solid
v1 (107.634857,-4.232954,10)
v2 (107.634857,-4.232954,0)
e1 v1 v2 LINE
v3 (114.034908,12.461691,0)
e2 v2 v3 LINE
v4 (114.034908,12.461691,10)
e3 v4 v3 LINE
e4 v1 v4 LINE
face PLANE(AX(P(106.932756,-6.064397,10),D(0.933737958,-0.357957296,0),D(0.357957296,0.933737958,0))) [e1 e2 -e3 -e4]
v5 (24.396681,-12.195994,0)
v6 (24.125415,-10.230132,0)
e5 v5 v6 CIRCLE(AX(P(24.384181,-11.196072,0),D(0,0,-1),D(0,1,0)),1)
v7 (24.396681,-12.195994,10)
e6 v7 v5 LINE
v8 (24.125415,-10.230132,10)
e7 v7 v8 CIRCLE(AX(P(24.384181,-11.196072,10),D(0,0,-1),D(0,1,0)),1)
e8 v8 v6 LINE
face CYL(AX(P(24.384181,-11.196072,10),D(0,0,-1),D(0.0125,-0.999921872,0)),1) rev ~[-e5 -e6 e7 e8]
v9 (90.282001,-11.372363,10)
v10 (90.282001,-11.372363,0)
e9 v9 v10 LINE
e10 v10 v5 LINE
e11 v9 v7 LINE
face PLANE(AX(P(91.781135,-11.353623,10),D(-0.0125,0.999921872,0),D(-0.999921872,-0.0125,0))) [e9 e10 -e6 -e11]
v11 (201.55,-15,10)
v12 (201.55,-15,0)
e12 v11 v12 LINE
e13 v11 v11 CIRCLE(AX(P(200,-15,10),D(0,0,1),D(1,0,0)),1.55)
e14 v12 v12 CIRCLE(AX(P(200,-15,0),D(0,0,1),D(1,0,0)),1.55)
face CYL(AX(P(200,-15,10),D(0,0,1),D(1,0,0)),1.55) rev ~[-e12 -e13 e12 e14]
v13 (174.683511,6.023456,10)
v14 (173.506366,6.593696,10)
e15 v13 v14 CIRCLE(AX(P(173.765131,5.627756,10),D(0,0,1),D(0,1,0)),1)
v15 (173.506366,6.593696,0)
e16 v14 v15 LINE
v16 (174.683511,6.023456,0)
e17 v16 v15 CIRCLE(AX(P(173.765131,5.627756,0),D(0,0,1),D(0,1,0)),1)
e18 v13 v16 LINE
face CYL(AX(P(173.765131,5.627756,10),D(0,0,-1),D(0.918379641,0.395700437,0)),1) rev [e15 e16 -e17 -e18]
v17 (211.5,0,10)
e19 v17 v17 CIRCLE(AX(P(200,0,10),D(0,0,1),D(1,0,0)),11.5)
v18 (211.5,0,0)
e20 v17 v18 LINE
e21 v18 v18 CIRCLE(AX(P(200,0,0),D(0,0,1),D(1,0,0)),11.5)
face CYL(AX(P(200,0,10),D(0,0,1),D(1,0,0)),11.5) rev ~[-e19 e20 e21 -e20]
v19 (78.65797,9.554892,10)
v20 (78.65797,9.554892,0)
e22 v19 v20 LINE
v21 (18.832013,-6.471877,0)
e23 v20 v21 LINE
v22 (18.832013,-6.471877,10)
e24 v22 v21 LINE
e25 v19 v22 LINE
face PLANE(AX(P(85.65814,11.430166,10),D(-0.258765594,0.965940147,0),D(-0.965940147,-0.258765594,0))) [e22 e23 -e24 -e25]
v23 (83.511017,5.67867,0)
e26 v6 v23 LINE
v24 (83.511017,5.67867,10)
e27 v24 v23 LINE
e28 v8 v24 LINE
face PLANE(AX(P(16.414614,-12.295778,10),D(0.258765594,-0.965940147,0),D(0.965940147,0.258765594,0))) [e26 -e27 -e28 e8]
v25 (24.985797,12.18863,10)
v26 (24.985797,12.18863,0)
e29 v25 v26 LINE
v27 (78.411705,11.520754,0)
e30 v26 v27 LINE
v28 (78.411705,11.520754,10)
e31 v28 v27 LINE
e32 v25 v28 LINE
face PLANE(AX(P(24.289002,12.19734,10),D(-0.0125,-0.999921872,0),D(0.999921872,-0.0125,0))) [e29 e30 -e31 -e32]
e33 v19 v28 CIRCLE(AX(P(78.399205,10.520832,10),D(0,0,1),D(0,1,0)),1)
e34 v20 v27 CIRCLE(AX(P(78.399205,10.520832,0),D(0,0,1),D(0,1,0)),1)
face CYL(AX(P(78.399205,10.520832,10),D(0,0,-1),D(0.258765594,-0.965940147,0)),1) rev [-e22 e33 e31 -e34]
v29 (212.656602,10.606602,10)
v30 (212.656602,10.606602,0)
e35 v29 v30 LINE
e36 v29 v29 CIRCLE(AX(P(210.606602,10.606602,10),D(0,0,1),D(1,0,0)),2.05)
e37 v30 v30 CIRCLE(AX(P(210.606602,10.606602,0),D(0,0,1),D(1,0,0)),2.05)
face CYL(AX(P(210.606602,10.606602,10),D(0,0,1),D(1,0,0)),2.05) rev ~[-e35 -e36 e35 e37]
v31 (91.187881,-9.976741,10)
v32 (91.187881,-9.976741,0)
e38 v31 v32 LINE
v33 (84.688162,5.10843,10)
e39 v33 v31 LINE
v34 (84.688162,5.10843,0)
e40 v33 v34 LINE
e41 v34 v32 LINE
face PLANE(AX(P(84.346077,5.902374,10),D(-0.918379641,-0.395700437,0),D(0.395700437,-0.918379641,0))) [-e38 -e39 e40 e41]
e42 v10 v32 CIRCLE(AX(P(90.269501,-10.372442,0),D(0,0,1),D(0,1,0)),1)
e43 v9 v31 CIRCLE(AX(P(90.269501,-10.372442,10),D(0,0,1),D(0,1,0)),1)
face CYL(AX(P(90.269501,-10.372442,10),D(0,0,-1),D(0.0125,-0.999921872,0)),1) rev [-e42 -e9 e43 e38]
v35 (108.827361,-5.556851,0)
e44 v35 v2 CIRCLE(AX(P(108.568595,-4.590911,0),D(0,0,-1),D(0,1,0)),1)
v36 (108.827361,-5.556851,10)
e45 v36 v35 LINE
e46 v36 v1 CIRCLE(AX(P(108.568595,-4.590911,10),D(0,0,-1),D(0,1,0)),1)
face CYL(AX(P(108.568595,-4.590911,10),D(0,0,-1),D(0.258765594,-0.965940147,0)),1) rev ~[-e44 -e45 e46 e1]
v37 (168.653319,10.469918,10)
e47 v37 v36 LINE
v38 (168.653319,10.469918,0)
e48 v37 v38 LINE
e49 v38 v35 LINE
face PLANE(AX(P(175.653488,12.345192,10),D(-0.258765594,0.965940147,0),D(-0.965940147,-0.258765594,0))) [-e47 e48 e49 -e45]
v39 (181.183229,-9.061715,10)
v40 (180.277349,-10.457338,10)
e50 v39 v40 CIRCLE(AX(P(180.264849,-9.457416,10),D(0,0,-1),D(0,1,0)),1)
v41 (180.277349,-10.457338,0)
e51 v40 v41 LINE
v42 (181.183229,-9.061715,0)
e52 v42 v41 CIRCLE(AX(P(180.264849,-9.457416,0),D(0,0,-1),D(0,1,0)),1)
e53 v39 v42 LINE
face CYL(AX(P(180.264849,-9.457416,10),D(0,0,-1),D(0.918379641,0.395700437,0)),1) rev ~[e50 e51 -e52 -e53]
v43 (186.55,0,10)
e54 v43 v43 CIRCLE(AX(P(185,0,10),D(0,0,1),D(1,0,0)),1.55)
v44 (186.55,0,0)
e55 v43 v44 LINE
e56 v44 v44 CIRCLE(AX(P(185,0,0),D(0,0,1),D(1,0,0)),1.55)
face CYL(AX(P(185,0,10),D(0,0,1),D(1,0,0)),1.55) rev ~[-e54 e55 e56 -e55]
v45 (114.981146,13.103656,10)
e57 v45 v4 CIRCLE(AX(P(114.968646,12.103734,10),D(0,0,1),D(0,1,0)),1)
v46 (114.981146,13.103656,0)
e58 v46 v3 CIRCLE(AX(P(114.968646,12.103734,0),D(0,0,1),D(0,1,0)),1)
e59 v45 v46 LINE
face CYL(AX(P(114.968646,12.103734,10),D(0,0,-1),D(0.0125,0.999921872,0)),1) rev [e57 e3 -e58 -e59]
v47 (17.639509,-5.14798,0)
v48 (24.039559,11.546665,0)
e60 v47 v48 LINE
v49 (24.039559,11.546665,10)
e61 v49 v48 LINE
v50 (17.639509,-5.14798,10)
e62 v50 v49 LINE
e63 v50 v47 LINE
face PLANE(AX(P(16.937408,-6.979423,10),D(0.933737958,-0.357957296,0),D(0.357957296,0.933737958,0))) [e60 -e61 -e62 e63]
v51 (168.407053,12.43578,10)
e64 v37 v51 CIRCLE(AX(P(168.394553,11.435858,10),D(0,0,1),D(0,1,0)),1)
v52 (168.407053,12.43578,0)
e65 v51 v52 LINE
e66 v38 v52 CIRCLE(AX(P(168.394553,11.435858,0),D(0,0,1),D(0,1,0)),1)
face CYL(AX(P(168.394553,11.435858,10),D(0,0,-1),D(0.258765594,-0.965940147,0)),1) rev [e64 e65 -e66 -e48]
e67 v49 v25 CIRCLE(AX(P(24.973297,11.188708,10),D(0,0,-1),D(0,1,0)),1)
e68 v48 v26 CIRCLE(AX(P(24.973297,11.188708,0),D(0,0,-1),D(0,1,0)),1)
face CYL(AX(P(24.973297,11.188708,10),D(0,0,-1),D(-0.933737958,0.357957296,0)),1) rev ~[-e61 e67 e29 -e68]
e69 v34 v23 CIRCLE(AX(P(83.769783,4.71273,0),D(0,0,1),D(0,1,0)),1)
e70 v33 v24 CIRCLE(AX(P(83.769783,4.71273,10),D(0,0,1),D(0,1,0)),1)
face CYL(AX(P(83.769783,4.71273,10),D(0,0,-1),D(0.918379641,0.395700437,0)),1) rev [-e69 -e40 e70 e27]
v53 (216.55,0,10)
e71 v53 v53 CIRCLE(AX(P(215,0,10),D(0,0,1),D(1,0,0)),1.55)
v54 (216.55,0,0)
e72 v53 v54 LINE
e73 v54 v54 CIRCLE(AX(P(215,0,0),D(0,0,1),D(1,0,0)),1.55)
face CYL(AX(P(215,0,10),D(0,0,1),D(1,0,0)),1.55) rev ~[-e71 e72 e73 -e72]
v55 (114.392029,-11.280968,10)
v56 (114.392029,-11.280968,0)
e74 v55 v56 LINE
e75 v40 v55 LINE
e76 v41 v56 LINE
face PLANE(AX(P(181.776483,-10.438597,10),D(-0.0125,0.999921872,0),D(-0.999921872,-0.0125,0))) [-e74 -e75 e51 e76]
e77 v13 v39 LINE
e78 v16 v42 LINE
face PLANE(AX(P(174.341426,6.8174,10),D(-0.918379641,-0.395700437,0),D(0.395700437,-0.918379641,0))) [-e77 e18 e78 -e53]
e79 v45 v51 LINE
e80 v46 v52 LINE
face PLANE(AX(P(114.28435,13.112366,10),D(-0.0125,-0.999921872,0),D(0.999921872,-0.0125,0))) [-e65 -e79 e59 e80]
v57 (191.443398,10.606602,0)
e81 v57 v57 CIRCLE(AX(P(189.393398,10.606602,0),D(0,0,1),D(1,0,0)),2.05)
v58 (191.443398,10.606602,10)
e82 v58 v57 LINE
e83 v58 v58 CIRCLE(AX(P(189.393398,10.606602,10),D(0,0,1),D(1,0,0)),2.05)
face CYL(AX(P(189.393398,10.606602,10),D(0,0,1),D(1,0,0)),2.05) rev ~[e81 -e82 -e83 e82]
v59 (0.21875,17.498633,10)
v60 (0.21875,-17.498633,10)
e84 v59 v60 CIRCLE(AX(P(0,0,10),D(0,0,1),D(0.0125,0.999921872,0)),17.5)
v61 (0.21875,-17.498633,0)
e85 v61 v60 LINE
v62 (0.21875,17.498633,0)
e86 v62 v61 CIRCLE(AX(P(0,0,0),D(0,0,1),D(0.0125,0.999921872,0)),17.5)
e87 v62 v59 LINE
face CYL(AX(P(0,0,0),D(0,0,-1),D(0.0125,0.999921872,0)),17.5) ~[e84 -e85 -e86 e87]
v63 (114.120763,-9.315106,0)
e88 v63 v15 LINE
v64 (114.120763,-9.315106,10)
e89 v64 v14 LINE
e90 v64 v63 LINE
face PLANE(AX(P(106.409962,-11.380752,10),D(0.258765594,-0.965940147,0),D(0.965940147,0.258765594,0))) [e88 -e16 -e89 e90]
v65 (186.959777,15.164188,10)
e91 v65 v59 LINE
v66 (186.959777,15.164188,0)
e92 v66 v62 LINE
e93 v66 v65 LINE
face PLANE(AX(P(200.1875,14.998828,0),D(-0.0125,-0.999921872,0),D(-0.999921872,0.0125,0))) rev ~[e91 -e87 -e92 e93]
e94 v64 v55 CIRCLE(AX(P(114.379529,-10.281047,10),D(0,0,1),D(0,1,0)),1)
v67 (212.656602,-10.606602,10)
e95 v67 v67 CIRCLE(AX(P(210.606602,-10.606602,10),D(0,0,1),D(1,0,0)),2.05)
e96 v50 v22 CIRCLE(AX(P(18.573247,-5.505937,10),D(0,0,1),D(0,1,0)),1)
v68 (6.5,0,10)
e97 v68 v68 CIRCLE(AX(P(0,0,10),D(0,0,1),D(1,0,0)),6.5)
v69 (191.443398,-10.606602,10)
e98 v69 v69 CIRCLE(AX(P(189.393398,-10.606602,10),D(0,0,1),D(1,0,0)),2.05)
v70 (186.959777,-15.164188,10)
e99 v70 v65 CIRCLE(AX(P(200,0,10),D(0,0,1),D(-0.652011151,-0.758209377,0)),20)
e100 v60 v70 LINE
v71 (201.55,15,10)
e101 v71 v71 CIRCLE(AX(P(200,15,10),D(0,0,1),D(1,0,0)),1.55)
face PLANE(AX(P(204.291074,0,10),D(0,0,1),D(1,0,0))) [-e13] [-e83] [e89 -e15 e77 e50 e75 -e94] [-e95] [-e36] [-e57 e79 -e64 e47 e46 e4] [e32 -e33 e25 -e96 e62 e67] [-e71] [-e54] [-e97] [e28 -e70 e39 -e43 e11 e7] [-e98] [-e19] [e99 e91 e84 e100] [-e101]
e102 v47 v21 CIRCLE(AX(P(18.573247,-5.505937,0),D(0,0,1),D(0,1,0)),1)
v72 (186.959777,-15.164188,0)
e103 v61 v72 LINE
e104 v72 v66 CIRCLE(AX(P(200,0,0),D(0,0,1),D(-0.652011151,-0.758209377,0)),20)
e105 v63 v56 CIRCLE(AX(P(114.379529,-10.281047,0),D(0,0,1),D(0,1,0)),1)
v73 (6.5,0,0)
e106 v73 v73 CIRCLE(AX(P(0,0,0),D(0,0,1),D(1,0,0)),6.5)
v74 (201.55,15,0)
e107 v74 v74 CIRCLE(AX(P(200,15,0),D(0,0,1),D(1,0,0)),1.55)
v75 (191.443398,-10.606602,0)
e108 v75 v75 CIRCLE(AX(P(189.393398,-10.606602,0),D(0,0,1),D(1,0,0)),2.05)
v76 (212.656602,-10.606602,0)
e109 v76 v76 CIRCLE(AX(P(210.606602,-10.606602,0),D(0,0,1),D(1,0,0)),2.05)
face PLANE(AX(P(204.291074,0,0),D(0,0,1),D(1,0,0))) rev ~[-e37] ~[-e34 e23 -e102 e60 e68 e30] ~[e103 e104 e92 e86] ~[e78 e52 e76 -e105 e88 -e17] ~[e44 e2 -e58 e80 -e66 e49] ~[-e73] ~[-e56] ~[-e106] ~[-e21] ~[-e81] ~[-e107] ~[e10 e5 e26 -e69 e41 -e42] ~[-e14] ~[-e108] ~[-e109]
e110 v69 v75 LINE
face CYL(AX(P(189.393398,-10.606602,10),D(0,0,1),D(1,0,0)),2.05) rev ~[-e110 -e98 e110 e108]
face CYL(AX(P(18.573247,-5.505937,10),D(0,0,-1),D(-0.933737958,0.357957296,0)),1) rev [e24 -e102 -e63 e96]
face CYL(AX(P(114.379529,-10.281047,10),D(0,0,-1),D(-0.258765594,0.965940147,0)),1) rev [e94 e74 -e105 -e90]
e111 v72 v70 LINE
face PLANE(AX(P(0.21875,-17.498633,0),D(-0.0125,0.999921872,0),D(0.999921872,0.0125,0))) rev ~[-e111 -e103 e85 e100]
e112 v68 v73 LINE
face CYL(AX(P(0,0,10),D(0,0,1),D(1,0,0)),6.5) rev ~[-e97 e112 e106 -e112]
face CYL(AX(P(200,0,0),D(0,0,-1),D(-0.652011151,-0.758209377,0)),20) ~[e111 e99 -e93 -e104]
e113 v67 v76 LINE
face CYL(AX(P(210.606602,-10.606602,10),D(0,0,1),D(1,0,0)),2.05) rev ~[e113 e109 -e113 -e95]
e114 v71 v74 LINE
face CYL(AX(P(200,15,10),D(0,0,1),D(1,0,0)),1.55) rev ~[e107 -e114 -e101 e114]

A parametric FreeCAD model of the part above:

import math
import FreeCAD as App
import Part
import Sketcher
Q = App.Units.Quantity


def edges_at(feature, points):
    """Names of the edges that pass closest to the given points."""
    edges = feature.Shape.Edges
    near = lambda p: min(range(len(edges)), key=lambda i: edges[i].distToShape(Part.Vertex(*p))[0])
    return sorted({f"Edge{near(p) + 1}" for p in points})

doc = App.newDocument("Part")
body = doc.addObject("PartDesign::Body", "Body")

sketch1 = doc.addObject("Sketcher::SketchObject", "Sketch")
body.addObject(sketch1)
sketch1.AttachmentSupport = (doc.XY_Plane, [""])
sketch1.MapMode = "FlatFace"
sketch1.addGeometry(Part.LineSegment(App.Vector(200.1875, 14.998828, 0), App.Vector(0.21875, 17.498633, 0)), False)
sketch1.addGeometry(Part.ArcOfCircle(Part.Circle(App.Vector(0, 0, 0), App.Vector(0, 0, 1), 17.5), math.radians(89.283784), math.radians(270.716216)), False)
sketch1.addGeometry(Part.LineSegment(App.Vector(0.21875, -17.498633, 0), App.Vector(200.1875, -14.998828, 0)), False)
sketch1.addGeometry(Part.ArcOfCircle(Part.Circle(App.Vector(200, 0, 0), App.Vector(0, 0, 1), 15), math.radians(-89.283784), math.radians(89.283784)), False)
sketch1.addConstraint(Sketcher.Constraint("Tangent", 0, 2, 1, 1))
sketch1.addConstraint(Sketcher.Constraint("Tangent", 1, 2, 2, 1))
sketch1.addConstraint(Sketcher.Constraint("Tangent", 2, 2, 3, 1))
sketch1.addConstraint(Sketcher.Constraint("Tangent", 3, 2, 0, 1))
sketch1.addConstraint(Sketcher.Constraint("Coincident", 1, 3, -1, 1))
sketch1.addConstraint(Sketcher.Constraint("PointOnObject", 3, 3, -1))
sketch1.addConstraint(Sketcher.Constraint("Radius", 3, Q("15 mm")))
sketch1.addConstraint(Sketcher.Constraint("Radius", 1, Q("17.5 mm")))
sketch1.addConstraint(Sketcher.Constraint("DistanceX", -1, 1, 3, 3, Q("200 mm")))
pad1 = doc.addObject("PartDesign::Pad", "Pad")
body.addObject(pad1)
pad1.Profile = sketch1
pad1.Length = 10

sketch2 = doc.addObject("Sketcher::SketchObject", "Sketch001")
body.addObject(sketch2)
sketch2.AttachmentSupport = (doc.XY_Plane, [""])
sketch2.MapMode = "FlatFace"
sketch2.AttachmentOffset = App.Placement(App.Vector(0, 0, 10), App.Rotation())
sketch2.addGeometry(Part.Circle(App.Vector(0, 0, 0), App.Vector(0, 0, 1), 6.5), False)
sketch2.addConstraint(Sketcher.Constraint("Coincident", 0, 3, -1, 1))
sketch2.addConstraint(Sketcher.Constraint("Diameter", 0, Q("13 mm")))
pocket1 = doc.addObject("PartDesign::Pocket", "Pocket")
body.addObject(pocket1)
pocket1.Profile = sketch2
pocket1.Length = 10

sketch3 = doc.addObject("Sketcher::SketchObject", "Sketch002")
body.addObject(sketch3)
sketch3.AttachmentSupport = (doc.XY_Plane, [""])
sketch3.MapMode = "FlatFace"
sketch3.AttachmentOffset = App.Placement(App.Vector(0, 0, 10), App.Rotation())
sketch3.addGeometry(Part.LineSegment(App.Vector(85.65814, 11.430166, 0), App.Vector(24.289002, 12.19734, 0)), False)
sketch3.addGeometry(Part.LineSegment(App.Vector(24.289002, 12.19734, 0), App.Vector(16.937408, -6.979423, 0)), False)
sketch3.addGeometry(Part.LineSegment(App.Vector(16.937408, -6.979423, 0), App.Vector(85.65814, 11.430166, 0)), False)
sketch3.addGeometry(Part.LineSegment(App.Vector(84.346077, 5.902374, 0), App.Vector(16.414614, -12.295778, 0)), False)
sketch3.addGeometry(Part.LineSegment(App.Vector(16.414614, -12.295778, 0), App.Vector(91.781135, -11.353623, 0)), False)
sketch3.addGeometry(Part.LineSegment(App.Vector(91.781135, -11.353623, 0), App.Vector(84.346077, 5.902374, 0)), False)
sketch3.addGeometry(Part.LineSegment(App.Vector(114.28435, 13.112366, 0), App.Vector(106.932756, -6.064397, 0)), False)
sketch3.addGeometry(Part.LineSegment(App.Vector(106.932756, -6.064397, 0), App.Vector(175.653488, 12.345192, 0)), False)
sketch3.addGeometry(Part.LineSegment(App.Vector(175.653488, 12.345192, 0), App.Vector(114.28435, 13.112366, 0)), False)
sketch3.addGeometry(Part.LineSegment(App.Vector(106.409962, -11.380752, 0), App.Vector(181.776483, -10.438597, 0)), False)
sketch3.addGeometry(Part.LineSegment(App.Vector(181.776483, -10.438597, 0), App.Vector(174.341426, 6.8174, 0)), False)
sketch3.addGeometry(Part.LineSegment(App.Vector(174.341426, 6.8174, 0), App.Vector(106.409962, -11.380752, 0)), False)
sketch3.addConstraint(Sketcher.Constraint("Coincident", 0, 2, 1, 1))
sketch3.addConstraint(Sketcher.Constraint("Coincident", 1, 2, 2, 1))
sketch3.addConstraint(Sketcher.Constraint("Coincident", 2, 2, 0, 1))
sketch3.addConstraint(Sketcher.Constraint("Coincident", 3, 2, 4, 1))
sketch3.addConstraint(Sketcher.Constraint("Coincident", 4, 2, 5, 1))
sketch3.addConstraint(Sketcher.Constraint("Coincident", 5, 2, 3, 1))
sketch3.addConstraint(Sketcher.Constraint("Coincident", 6, 2, 7, 1))
sketch3.addConstraint(Sketcher.Constraint("Coincident", 7, 2, 8, 1))
sketch3.addConstraint(Sketcher.Constraint("Coincident", 8, 2, 6, 1))
sketch3.addConstraint(Sketcher.Constraint("Coincident", 9, 2, 10, 1))
sketch3.addConstraint(Sketcher.Constraint("Coincident", 10, 2, 11, 1))
sketch3.addConstraint(Sketcher.Constraint("Coincident", 11, 2, 9, 1))
sketch3.addConstraint(Sketcher.Constraint("Parallel", 2, 3))
sketch3.addConstraint(Sketcher.Constraint("Parallel", 1, 6))
sketch3.addConstraint(Sketcher.Constraint("Parallel", 3, 7))
sketch3.addConstraint(Sketcher.Constraint("Parallel", 0, 8))
sketch3.addConstraint(Sketcher.Constraint("Parallel", 4, 9))
sketch3.addConstraint(Sketcher.Constraint("Parallel", 5, 10))
sketch3.addConstraint(Sketcher.Constraint("Parallel", 7, 11))
sketch3.addConstraint(Sketcher.Constraint("Equal", 1, 6))
sketch3.addConstraint(Sketcher.Constraint("Equal", 4, 9))
sketch3.addConstraint(Sketcher.Constraint("DistanceX", -1, 1, 0, 2, Q("24.289002 mm")))
sketch3.addConstraint(Sketcher.Constraint("DistanceY", -1, 1, 10, 2, Q("6.8174 mm")))
sketch3.addConstraint(Sketcher.Constraint("DistanceY", 4, 2, 1, 2, Q("4.3742 mm")))
sketch3.addConstraint(Sketcher.Constraint("DistanceY", 2, 2, 8, 2, Q("1.6822 mm")))
sketch3.addConstraint(Sketcher.Constraint("DistanceY", 9, 2, 6, 2, Q("4.3742 mm")))
sketch3.addConstraint(Sketcher.Constraint("Distance", 1, Q("20.537628 mm")))
sketch3.addConstraint(Sketcher.Constraint("Distance", 2, Q("71.143882 mm")))
sketch3.addConstraint(Sketcher.Constraint("Distance", 4, Q("75.37241 mm")))
sketch3.addConstraint(Sketcher.Constraint("Distance", 5, Q("18.789612 mm")))
sketch3.addConstraint(Sketcher.Constraint("DistanceY", -1, 1, 0, 2, Q("12.19734 mm")))
sketch3.addConstraint(Sketcher.Constraint("DistanceX", -1, 1, 1, 2, Q("16.937408 mm")))
sketch3.addConstraint(Sketcher.Constraint("DistanceX", -1, 1, 2, 2, Q("85.65814 mm")))
sketch3.addConstraint(Sketcher.Constraint("DistanceX", -1, 1, 8, 2, Q("114.28435 mm")))
sketch3.addConstraint(Sketcher.Constraint("DistanceX", 3, 2, 0, 2, Q("7.874388 mm")))
sketch3.addConstraint(Sketcher.Constraint("DistanceX", 4, 2, 9, 2, Q("89.995348 mm")))
pocket2 = doc.addObject("PartDesign::Pocket", "Pocket001")
body.addObject(pocket2)
pocket2.Profile = sketch3
pocket2.Length = 10
doc.recompute()

fillet = doc.addObject("PartDesign::Fillet", "Fillet")
body.addObject(fillet)
fillet.Base = (pocket2, edges_at(pocket2, [
    (84.346, 5.902, 5),
    (91.781, -11.354, 5),
    (16.415, -12.296, 5),
    (175.653, 12.345, 5),
    (106.933, -6.064, 5),
    (114.284, 13.112, 5),
    (174.341, 6.817, 5),
    (181.776, -10.439, 5),
    (106.41, -11.381, 5),
    (85.658, 11.43, 5),
    (16.937, -6.979, 5),
    (24.289, 12.197, 5),
]))
fillet.Radius = 1

sketch4 = doc.addObject("Sketcher::SketchObject", "Sketch003")
body.addObject(sketch4)
sketch4.AttachmentSupport = (doc.XY_Plane, [""])
sketch4.MapMode = "FlatFace"
sketch4.addGeometry(Part.LineSegment(App.Vector(186.959777, 15.164188, 0), App.Vector(200.1875, 14.998828, 0)), False)
sketch4.addGeometry(Part.ArcOfCircle(Part.Circle(App.Vector(200, 0, 0), App.Vector(0, 0, 1), 15), math.radians(-89.283784), math.radians(89.283784)), False)
sketch4.addGeometry(Part.LineSegment(App.Vector(200.1875, -14.998828, 0), App.Vector(186.959777, -15.164188, 0)), False)
sketch4.addGeometry(Part.ArcOfCircle(Part.Circle(App.Vector(200, 0, 0), App.Vector(0, 0, 1), 20), math.radians(-130.693406), math.radians(130.693406)), False)
sketch4.addConstraint(Sketcher.Constraint("Tangent", 0, 2, 1, 2))
sketch4.addConstraint(Sketcher.Constraint("Tangent", 1, 1, 2, 1))
sketch4.addConstraint(Sketcher.Constraint("Coincident", 2, 2, 3, 1))
sketch4.addConstraint(Sketcher.Constraint("Coincident", 3, 2, 0, 1))
sketch4.addConstraint(Sketcher.Constraint("Coincident", 3, 3, 1, 3))
sketch4.addConstraint(Sketcher.Constraint("Symmetric", 0, 2, 1, 1, -1))
sketch4.addConstraint(Sketcher.Constraint("Radius", 1, Q("15 mm")))
sketch4.addConstraint(Sketcher.Constraint("Radius", 3, Q("20 mm")))
sketch4.addConstraint(Sketcher.Constraint("DistanceX", -1, 1, 1, 3, Q("200 mm")))
sketch4.addConstraint(Sketcher.Constraint("DistanceX", -1, 1, 0, 2, Q("200.1875 mm")))
pad2 = doc.addObject("PartDesign::Pad", "Pad001")
body.addObject(pad2)
pad2.Profile = sketch4
pad2.Length = 10

sketch5 = doc.addObject("Sketcher::SketchObject", "Sketch004")
body.addObject(sketch5)
sketch5.AttachmentSupport = (doc.XY_Plane, [""])
sketch5.MapMode = "FlatFace"
sketch5.AttachmentOffset = App.Placement(App.Vector(0, 0, 10), App.Rotation())
sketch5.addGeometry(Part.Circle(App.Vector(200, 15, 0), App.Vector(0, 0, 1), 1.55), False)
sketch5.addGeometry(Part.Circle(App.Vector(215, 0, 0), App.Vector(0, 0, 1), 1.55), False)
sketch5.addGeometry(Part.Circle(App.Vector(200, -15, 0), App.Vector(0, 0, 1), 1.55), False)
sketch5.addGeometry(Part.Circle(App.Vector(185, 0, 0), App.Vector(0, 0, 1), 1.55), False)
sketch5.addGeometry(Part.Circle(App.Vector(189.393398, 10.606602, 0), App.Vector(0, 0, 1), 2.05), False)
sketch5.addGeometry(Part.Circle(App.Vector(210.606602, 10.606602, 0), App.Vector(0, 0, 1), 2.05), False)
sketch5.addGeometry(Part.Circle(App.Vector(210.606602, -10.606602, 0), App.Vector(0, 0, 1), 2.05), False)
sketch5.addGeometry(Part.Circle(App.Vector(189.393398, -10.606602, 0), App.Vector(0, 0, 1), 2.05), False)
sketch5.addConstraint(Sketcher.Constraint("Equal", 0, 1))
sketch5.addConstraint(Sketcher.Constraint("Equal", 1, 2))
sketch5.addConstraint(Sketcher.Constraint("Equal", 2, 3))
sketch5.addConstraint(Sketcher.Constraint("Equal", 4, 5))
sketch5.addConstraint(Sketcher.Constraint("Equal", 5, 6))
sketch5.addConstraint(Sketcher.Constraint("Equal", 6, 7))
sketch5.addConstraint(Sketcher.Constraint("Symmetric", 0, 3, 2, 3, -1))
sketch5.addConstraint(Sketcher.Constraint("Symmetric", 5, 3, 6, 3, -1))
sketch5.addConstraint(Sketcher.Constraint("Symmetric", 4, 3, 7, 3, -1))
sketch5.addConstraint(Sketcher.Constraint("PointOnObject", 1, 3, -1))
sketch5.addConstraint(Sketcher.Constraint("PointOnObject", 3, 3, -1))
sketch5.addConstraint(Sketcher.Constraint("Horizontal", 4, 3, 5, 3))
sketch5.addConstraint(Sketcher.Constraint("Diameter", 0, Q("3.1 mm")))
sketch5.addConstraint(Sketcher.Constraint("Diameter", 4, Q("4.1 mm")))
sketch5.addConstraint(Sketcher.Constraint("DistanceX", -1, 1, 0, 3, Q("200 mm")))
sketch5.addConstraint(Sketcher.Constraint("DistanceY", -1, 1, 0, 3, Q("15 mm")))
sketch5.addConstraint(Sketcher.Constraint("DistanceX", -1, 1, 1, 3, Q("215 mm")))
sketch5.addConstraint(Sketcher.Constraint("DistanceX", -1, 1, 3, 3, Q("185 mm")))
sketch5.addConstraint(Sketcher.Constraint("DistanceX", -1, 1, 4, 3, Q("189.393398 mm")))
sketch5.addConstraint(Sketcher.Constraint("DistanceY", -1, 1, 4, 3, Q("10.606602 mm")))
sketch5.addConstraint(Sketcher.Constraint("DistanceX", -1, 1, 5, 3, Q("210.606602 mm")))
pocket3 = doc.addObject("PartDesign::Pocket", "Pocket002")
body.addObject(pocket3)
pocket3.Profile = sketch5
pocket3.Length = 10

sketch6 = doc.addObject("Sketcher::SketchObject", "Sketch005")
body.addObject(sketch6)
sketch6.AttachmentSupport = (doc.XY_Plane, [""])
sketch6.MapMode = "FlatFace"
sketch6.AttachmentOffset = App.Placement(App.Vector(0, 0, 10), App.Rotation())
sketch6.addGeometry(Part.Circle(App.Vector(200, 0, 0), App.Vector(0, 0, 1), 11.5), False)
sketch6.addConstraint(Sketcher.Constraint("PointOnObject", 0, 3, -1))
sketch6.addConstraint(Sketcher.Constraint("Diameter", 0, Q("23 mm")))
sketch6.addConstraint(Sketcher.Constraint("DistanceX", -1, 1, 0, 3, Q("200 mm")))
pocket4 = doc.addObject("PartDesign::Pocket", "Pocket003")
body.addObject(pocket4)
pocket4.Profile = sketch6
pocket4.Length = 10

doc.recompute()
